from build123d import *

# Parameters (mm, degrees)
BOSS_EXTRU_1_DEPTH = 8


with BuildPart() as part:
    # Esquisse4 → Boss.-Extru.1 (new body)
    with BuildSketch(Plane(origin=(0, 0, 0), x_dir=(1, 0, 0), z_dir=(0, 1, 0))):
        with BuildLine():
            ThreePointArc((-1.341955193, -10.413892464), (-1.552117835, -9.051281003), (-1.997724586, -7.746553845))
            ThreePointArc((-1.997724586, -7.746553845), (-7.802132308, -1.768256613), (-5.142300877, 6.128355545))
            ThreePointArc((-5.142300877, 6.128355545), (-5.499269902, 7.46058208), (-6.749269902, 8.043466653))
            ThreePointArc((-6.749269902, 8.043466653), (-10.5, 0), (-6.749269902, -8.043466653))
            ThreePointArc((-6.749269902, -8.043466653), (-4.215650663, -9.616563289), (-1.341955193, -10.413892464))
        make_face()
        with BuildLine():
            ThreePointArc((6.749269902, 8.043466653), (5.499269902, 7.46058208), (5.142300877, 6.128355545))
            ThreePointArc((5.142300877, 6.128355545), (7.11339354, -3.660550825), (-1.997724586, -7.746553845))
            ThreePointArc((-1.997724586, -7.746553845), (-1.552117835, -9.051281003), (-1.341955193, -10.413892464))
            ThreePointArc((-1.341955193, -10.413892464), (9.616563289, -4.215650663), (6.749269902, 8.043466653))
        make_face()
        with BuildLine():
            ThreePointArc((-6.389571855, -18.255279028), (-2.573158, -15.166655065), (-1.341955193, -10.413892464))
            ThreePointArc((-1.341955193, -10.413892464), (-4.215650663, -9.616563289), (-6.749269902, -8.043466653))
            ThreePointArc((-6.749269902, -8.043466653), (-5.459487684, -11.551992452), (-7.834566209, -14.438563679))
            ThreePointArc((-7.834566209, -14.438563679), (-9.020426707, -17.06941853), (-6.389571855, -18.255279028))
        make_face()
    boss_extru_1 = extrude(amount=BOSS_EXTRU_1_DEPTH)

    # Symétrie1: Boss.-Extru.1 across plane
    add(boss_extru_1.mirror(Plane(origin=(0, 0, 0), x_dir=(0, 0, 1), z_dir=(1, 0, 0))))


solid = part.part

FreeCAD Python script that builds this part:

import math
import FreeCAD as App
import Part
import Sketcher
from FreeCAD import Vector

doc = App.newDocument("Part")
body = doc.addObject("PartDesign::Body", "Body")

# Sketch on XZ plane
sketch1 = body.newObject("Sketcher::SketchObject", "Sketch")
sketch1.AttachmentSupport = (doc.getObject("XZ_Plane"), [""])
sketch1.MapMode = "FlatFace"
sketch1.addGeometry([
    Part.ArcOfCircle(Part.Circle(Vector(0, 0, 0), Vector(0, 0, 1), 8), math.radians(104), math.radians(230)),  # 0
    Part.ArcOfCircle(Part.Circle(Vector(-6.7, -6.4, 0), Vector(0, 0, 1), 1.6), math.radians(-90), math.radians(10)),  # 1
    Part.ArcOfCircle(Part.Circle(Vector(0, 0, 0), Vector(0, 0, 1), 10.5), math.radians(130), math.radians(230)),  # 2
    Part.ArcOfCircle(Part.Circle(Vector(-9.2, 10.9, 0), Vector(0, 0, 1), 3.8), math.radians(-50), math.radians(69)),  # 3
    Part.ArcOfCircle(Part.Circle(Vector(-7.1, 16.3, 0), Vector(0, 0, 1), 2), math.radians(69), math.radians(249)),  # 4
    Part.ArcOfCircle(Part.Circle(Vector(-9.2, 10.9, 0), Vector(0, 0, 1), 7.8), math.radians(-4), math.radians(69)),  # 5
    Part.ArcOfCircle(Part.Circle(Vector(0, 0, 0), Vector(0, 0, 1), 10.5), math.radians(-50), math.radians(97)),  # 6
    Part.ArcOfCircle(Part.Circle(Vector(6.7, -6.4, 0), Vector(0, 0, 1), 1.6), math.radians(170), math.radians(270)),  # 7
    Part.ArcOfCircle(Part.Circle(Vector(0, 0, 0), Vector(0, 0, 1), 8), math.radians(-50), math.radians(104)),  # 8
], False)
sketch1.addConstraint([
    Sketcher.Constraint("Coincident", 0, 2, 1, 2),
    Sketcher.Constraint("Coincident", 1, 1, 2, 2),
    Sketcher.Constraint("Tangent", 2, 1, 3, 1),
    Sketcher.Constraint("Tangent", 3, 2, 4, 2),
    Sketcher.Constraint("Tangent", 4, 1, 5, 2),
    Sketcher.Constraint("Coincident", 5, 1, 6, 2),
    Sketcher.Constraint("Coincident", 6, 1, 7, 2),
    Sketcher.Constraint("Coincident", 7, 1, 8, 1),
    Sketcher.Constraint("Tangent", 8, 2, 0, 1),
    Sketcher.Constraint("Coincident", 0, 3, -1, 1),
    Sketcher.Constraint("Coincident", 2, 3, -1, 1),
    Sketcher.Constraint("Coincident", 6, 3, -1, 1),
    Sketcher.Constraint("Coincident", 5, 3, 3, 3),
    Sketcher.Constraint("Equal", 2, 6),
    Sketcher.Constraint("Equal", 1, 7),
    Sketcher.Constraint("Equal", 0, 8),
    Sketcher.Constraint("Symmetric", 1, 3, 7, 3, -2),
    Sketcher.Constraint("Vertical", 1, 1, 2, 1),
    Sketcher.Constraint("Vertical", 7, 3, 6, 1),
    Sketcher.Constraint("Radius", 0, 8.0),
    Sketcher.Constraint("Radius", 2, 10.5),
    Sketcher.Constraint("Radius", 1, 1.631759),
    Sketcher.Constraint("Radius", 3, 3.759029),
    Sketcher.Constraint("Radius", 4, 2.040547),
    Sketcher.Constraint("DistanceX", 0, 2, -1, 1, 5.142301),
    Sketcher.Constraint("DistanceX", 4, 3, 1, 3, 0.362799),
    Sketcher.Constraint("DistanceX", 8, 2, 5, 1, 0.655769),
])
pad1 = body.newObject("PartDesign::Pad", "Pad")
pad1.Profile = sketch1
pad1.Length = 8
pad1.Reversed = True
doc.recompute()

mirrored = body.newObject("PartDesign::Mirrored", "Mirrored")
mirrored.Originals = [pad1]
mirrored.MirrorPlane = (doc.getObject("YZ_Plane"), [""])
body.Tip = mirrored

doc.recompute()
